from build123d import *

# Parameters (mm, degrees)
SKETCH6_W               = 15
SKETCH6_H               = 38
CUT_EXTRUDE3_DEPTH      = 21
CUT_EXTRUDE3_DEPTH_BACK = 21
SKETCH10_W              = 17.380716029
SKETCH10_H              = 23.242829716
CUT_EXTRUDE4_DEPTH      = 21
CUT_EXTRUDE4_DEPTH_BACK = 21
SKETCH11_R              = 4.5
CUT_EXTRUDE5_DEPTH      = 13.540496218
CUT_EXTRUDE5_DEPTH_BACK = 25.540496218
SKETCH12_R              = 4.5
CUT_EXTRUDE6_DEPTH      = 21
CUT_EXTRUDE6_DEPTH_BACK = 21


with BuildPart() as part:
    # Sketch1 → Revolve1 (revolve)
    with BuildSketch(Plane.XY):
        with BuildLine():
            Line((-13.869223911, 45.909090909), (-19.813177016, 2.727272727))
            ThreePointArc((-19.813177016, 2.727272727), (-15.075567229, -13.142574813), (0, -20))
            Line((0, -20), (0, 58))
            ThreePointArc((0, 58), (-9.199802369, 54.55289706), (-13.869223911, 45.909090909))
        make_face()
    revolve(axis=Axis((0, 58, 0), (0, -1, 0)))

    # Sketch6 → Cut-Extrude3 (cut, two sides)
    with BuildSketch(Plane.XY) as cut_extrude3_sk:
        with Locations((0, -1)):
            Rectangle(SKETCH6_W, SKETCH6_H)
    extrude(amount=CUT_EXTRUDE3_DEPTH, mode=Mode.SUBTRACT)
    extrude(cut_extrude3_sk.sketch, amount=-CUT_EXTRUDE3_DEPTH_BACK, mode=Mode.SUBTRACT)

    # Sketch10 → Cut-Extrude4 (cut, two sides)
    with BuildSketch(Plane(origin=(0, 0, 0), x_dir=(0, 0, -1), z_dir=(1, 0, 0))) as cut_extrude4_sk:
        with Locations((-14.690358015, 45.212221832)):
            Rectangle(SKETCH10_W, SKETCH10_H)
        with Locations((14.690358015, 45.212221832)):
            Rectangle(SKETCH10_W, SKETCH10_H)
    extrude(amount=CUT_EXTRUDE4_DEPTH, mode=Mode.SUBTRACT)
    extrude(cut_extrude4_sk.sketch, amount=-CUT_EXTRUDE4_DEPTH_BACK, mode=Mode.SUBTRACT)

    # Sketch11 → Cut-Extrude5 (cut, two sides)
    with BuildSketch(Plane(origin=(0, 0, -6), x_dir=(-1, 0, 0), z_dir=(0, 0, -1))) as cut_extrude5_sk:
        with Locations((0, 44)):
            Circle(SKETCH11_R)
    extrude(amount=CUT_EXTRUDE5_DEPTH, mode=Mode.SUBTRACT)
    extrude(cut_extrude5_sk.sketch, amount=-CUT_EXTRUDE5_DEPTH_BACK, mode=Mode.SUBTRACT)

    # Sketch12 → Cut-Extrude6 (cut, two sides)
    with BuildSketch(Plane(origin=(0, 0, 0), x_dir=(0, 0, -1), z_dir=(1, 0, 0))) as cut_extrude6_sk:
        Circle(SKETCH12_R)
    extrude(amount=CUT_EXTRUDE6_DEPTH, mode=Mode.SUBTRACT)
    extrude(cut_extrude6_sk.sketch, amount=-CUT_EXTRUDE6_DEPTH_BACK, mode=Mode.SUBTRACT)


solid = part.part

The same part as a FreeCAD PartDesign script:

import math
import FreeCAD as App
import Part
import Sketcher

doc = App.newDocument("Part")
body = doc.addObject("PartDesign::Body", "Body")

# Sketch on XY plane
sketch1 = doc.addObject("Sketcher::SketchObject", "Sketch")
body.addObject(sketch1)
sketch1.AttachmentSupport = (doc.XY_Plane, [""])
sketch1.MapMode = "FlatFace"
sketch1.addGeometry([
    Part.LineSegment(App.Vector(-14, 46, 0), App.Vector(-20, 3, 0)),
    Part.ArcOfCircle(Part.Circle(App.Vector(0, 0, 0), App.Vector(0, 0, 1), 20), math.radians(172), math.radians(270)),
    Part.LineSegment(App.Vector(0, -20, 0), App.Vector(0, 58, 0)),
    Part.ArcOfCircle(Part.Circle(App.Vector(0, 44, 0), App.Vector(0, 0, 1), 14), math.radians(90), math.radians(172)),
], False)
sketch1.addConstraint([
    Sketcher.Constraint("Tangent", 0, 2, 1, 1),
    Sketcher.Constraint("Coincident", 1, 2, 2, 1),
    Sketcher.Constraint("Coincident", 2, 2, 3, 1),
    Sketcher.Constraint("Tangent", 3, 2, 0, 1),
    Sketcher.Constraint("Vertical", 2),
    Sketcher.Constraint("Coincident", 1, 3, -1, 1),
    Sketcher.Constraint("PointOnObject", 3, 3, -2),
    Sketcher.Constraint("PointOnObject", 1, 2, -2),
    Sketcher.Constraint("Radius", 1, 20.0),
    Sketcher.Constraint("Radius", 3, 14.0),
    Sketcher.Constraint("DistanceY", 2, 1, 2, 2, 78.0),
])
revolution = doc.addObject("PartDesign::Revolution", "Revolution")
body.addObject(revolution)
revolution.Profile = sketch1
revolution.ReferenceAxis = (sketch1, ["V_Axis"])
revolution.Angle = 360

# Sketch on XY plane
sketch2 = doc.addObject("Sketcher::SketchObject", "Sketch001")
body.addObject(sketch2)
sketch2.AttachmentSupport = (doc.XY_Plane, [""])
sketch2.MapMode = "FlatFace"
sketch2.addGeometry([
    Part.LineSegment(App.Vector(-8, 18, 0), App.Vector(-8, -20, 0)),
    Part.LineSegment(App.Vector(-8, -20, 0), App.Vector(8, -20, 0)),
    Part.LineSegment(App.Vector(8, -20, 0), App.Vector(8, 18, 0)),
    Part.LineSegment(App.Vector(8, 18, 0), App.Vector(-8, 18, 0)),
], False)
sketch2.addConstraint([
    Sketcher.Constraint("Coincident", 0, 2, 1, 1),
    Sketcher.Constraint("Coincident", 1, 2, 2, 1),
    Sketcher.Constraint("Coincident", 2, 2, 3, 1),
    Sketcher.Constraint("Coincident", 3, 2, 0, 1),
    Sketcher.Constraint("Vertical", 0),
    Sketcher.Constraint("Horizontal", 1),
    Sketcher.Constraint("Vertical", 2),
    Sketcher.Constraint("Horizontal", 3),
    Sketcher.Constraint("DistanceX", 1, 1, 1, 2, 15.0),
    Sketcher.Constraint("DistanceY", 0, 2, 0, 1, 38.0),
    Sketcher.Constraint("DistanceY", 0, 2, -1, 1, 20.0),
    Sketcher.Constraint("DistanceX", 0, 2, -1, 1, 7.5),
])
pocket1 = doc.addObject("PartDesign::Pocket", "Pocket")
body.addObject(pocket1)
pocket1.Profile = sketch2
pocket1.Type = "ThroughAll"
pocket1.Midplane = True

# Sketch on YZ plane
sketch3 = doc.addObject("Sketcher::SketchObject", "Sketch002")
body.addObject(sketch3)
sketch3.AttachmentSupport = (doc.YZ_Plane, [""])
sketch3.MapMode = "FlatFace"
sketch3.addGeometry([
    Part.LineSegment(App.Vector(57, 23, 0), App.Vector(34, 23, 0)),  # 0
    Part.LineSegment(App.Vector(34, 23, 0), App.Vector(34, 6, 0)),  # 1
    Part.LineSegment(App.Vector(34, 6, 0), App.Vector(57, 6, 0)),  # 2
    Part.LineSegment(App.Vector(57, 6, 0), App.Vector(57, 23, 0)),  # 3
    Part.LineSegment(App.Vector(57, -6, 0), App.Vector(34, -6, 0)),  # 4
    Part.LineSegment(App.Vector(34, -6, 0), App.Vector(34, -23, 0)),  # 5
    Part.LineSegment(App.Vector(34, -23, 0), App.Vector(57, -23, 0)),  # 6
    Part.LineSegment(App.Vector(57, -23, 0), App.Vector(57, -6, 0)),  # 7
], False)
sketch3.addConstraint([
    Sketcher.Constraint("Coincident", 0, 2, 1, 1),
    Sketcher.Constraint("Coincident", 1, 2, 2, 1),
    Sketcher.Constraint("Coincident", 2, 2, 3, 1),
    Sketcher.Constraint("Coincident", 3, 2, 0, 1),
    Sketcher.Constraint("Coincident", 4, 2, 5, 1),
    Sketcher.Constraint("Coincident", 5, 2, 6, 1),
    Sketcher.Constraint("Coincident", 6, 2, 7, 1),
    Sketcher.Constraint("Coincident", 7, 2, 4, 1),
    Sketcher.Constraint("Horizontal", 0),
    Sketcher.Constraint("Vertical", 1),
    Sketcher.Constraint("Horizontal", 2),
    Sketcher.Constraint("Vertical", 3),
    Sketcher.Constraint("Horizontal", 4),
    Sketcher.Constraint("Vertical", 5),
    Sketcher.Constraint("Horizontal", 6),
    Sketcher.Constraint("Vertical", 7),
    Sketcher.Constraint("Symmetric", 1, 2, 4, 2, -1),
    Sketcher.Constraint("Symmetric", 3, 2, 6, 2, -1),
    Sketcher.Constraint("DistanceY", -1, 1, 1, 2, 6.0),
    Sketcher.Constraint("DistanceX", 0, 2, 0, 1, 23.24283),
    Sketcher.Constraint("DistanceY", 1, 2, 1, 1, 17.380716),
    Sketcher.Constraint("DistanceX", -1, 1, 0, 2, 33.590807),
])
pocket2 = doc.addObject("PartDesign::Pocket", "Pocket001")
body.addObject(pocket2)
pocket2.Profile = sketch3
pocket2.Type = "ThroughAll"
pocket2.Midplane = True

# Sketch on XY plane
sketch4 = doc.addObject("Sketcher::SketchObject", "Sketch003")
body.addObject(sketch4)
sketch4.AttachmentSupport = (doc.XY_Plane, [""])
sketch4.MapMode = "FlatFace"
sketch4.AttachmentOffset = App.Placement(App.Vector(0, 0, -6), App.Rotation())
sketch4.addGeometry(Part.Circle(App.Vector(0, 44, 0), App.Vector(0, 0, 1), 4.5), False)
sketch4.addConstraint([
    Sketcher.Constraint("PointOnObject", 0, 3, -2),
    Sketcher.Constraint("Diameter", 0, 9.0),
    Sketcher.Constraint("DistanceY", -1, 1, 0, 3, 44.0),
])
pocket3 = doc.addObject("PartDesign::Pocket", "Pocket002")
body.addObject(pocket3)
pocket3.Profile = sketch4
pocket3.Type = "ThroughAll"
pocket3.Midplane = True

# Sketch on YZ plane
sketch5 = doc.addObject("Sketcher::SketchObject", "Sketch004")
body.addObject(sketch5)
sketch5.AttachmentSupport = (doc.YZ_Plane, [""])
sketch5.MapMode = "FlatFace"
sketch5.addGeometry(Part.Circle(App.Vector(0, 0, 0), App.Vector(0, 0, 1), 4.5), False)
sketch5.addConstraint([
    Sketcher.Constraint("Coincident", 0, 3, -1, 1),
    Sketcher.Constraint("Diameter", 0, 9.0),
])
pocket4 = doc.addObject("PartDesign::Pocket", "Pocket003")
body.addObject(pocket4)
pocket4.Profile = sketch5
pocket4.Type = "ThroughAll"
pocket4.Midplane = True

doc.recompute()
